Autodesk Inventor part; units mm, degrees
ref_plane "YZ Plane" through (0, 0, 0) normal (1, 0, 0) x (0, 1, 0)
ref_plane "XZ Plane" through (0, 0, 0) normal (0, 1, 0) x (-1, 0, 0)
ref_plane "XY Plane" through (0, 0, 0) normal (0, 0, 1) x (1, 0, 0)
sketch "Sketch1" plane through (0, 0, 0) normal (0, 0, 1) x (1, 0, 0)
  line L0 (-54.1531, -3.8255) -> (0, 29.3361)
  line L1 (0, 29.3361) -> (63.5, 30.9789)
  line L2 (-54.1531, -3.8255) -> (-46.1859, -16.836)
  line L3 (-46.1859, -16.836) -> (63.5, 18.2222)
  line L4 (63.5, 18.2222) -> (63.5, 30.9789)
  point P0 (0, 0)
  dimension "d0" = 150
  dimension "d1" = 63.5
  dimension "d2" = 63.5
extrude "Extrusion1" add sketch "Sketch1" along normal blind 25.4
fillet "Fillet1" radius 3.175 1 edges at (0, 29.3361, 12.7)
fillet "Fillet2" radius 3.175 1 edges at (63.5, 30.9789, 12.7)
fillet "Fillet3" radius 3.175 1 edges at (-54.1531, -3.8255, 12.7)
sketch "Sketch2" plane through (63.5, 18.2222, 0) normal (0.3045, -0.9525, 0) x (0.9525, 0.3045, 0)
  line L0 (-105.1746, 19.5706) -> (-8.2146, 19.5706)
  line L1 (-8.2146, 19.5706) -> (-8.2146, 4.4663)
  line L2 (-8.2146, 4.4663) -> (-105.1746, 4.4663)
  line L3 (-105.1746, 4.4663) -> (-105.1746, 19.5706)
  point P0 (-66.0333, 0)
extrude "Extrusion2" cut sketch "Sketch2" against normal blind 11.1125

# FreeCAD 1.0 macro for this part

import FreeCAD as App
import Part
import Sketcher

V = App.Vector
Q = App.Units.Quantity


def edges_at(feature, points):
    """Names of the edges that pass closest to the given points."""
    edges = feature.Shape.Edges
    near = lambda p: min(range(len(edges)), key=lambda i: edges[i].distToShape(Part.Vertex(*p))[0])
    return sorted({f"Edge{near(p) + 1}" for p in points})

doc = App.newDocument("Part")
body = doc.addObject("PartDesign::Body", "Body")

sketch1 = doc.addObject("Sketcher::SketchObject", "Sketch")
body.addObject(sketch1)
sketch1.AttachmentSupport = (doc.XY_Plane, [""])
sketch1.MapMode = "FlatFace"
sketch1.addGeometry([
    Part.LineSegment(V(0, 29.3361, 0), V(-54.1531, -3.8255, 0)),
    Part.LineSegment(V(-54.1531, -3.8255, 0), V(-46.1859, -16.836, 0)),
    Part.LineSegment(V(-46.1859, -16.836, 0), V(63.5, 18.2222, 0)),
    Part.LineSegment(V(63.5, 18.2222, 0), V(63.5, 30.9789, 0)),
    Part.LineSegment(V(63.5, 30.9789, 0), V(0, 29.3361, 0)),
], False)
sketch1.addConstraint([
    Sketcher.Constraint("Coincident", 0, 2, 1, 1),
    Sketcher.Constraint("Coincident", 1, 2, 2, 1),
    Sketcher.Constraint("Coincident", 2, 2, 3, 1),
    Sketcher.Constraint("Coincident", 3, 2, 4, 1),
    Sketcher.Constraint("Coincident", 4, 2, 0, 1),
    Sketcher.Constraint("Vertical", 3),
    Sketcher.Constraint("PointOnObject", 4, 2, -2),
    Sketcher.Constraint("Perpendicular", 0, 1),
    Sketcher.Constraint("Distance", 0, Q("2.5 in")),
    Sketcher.Constraint("DistanceX", -1, 1, 2, 2, Q("2.5 in")),
    Sketcher.Constraint("DistanceX", 0, 2, -1, 1, Q("2.132 in")),
    Sketcher.Constraint("DistanceY", 3, 1, 3, 2, 12.7567),
    Sketcher.Constraint("DistanceY", 0, 2, -1, 1, Q("0.1506 in")),
    Sketcher.Constraint("DistanceY", -1, 1, 2, 2, Q("0.7174 in")),
    Sketcher.Constraint("DistanceY", 1, 2, 4, 2, Q("1.8178 in")),
])
pad1 = doc.addObject("PartDesign::Pad", "Pad")
body.addObject(pad1)
pad1.Profile = sketch1
pad1.Length = Q("1 in")
doc.recompute()

fillet = doc.addObject("PartDesign::Fillet", "Fillet")
body.addObject(fillet)
fillet.Base = (pad1, edges_at(pad1, [(0, 29.336, 12.7)]))
fillet.Radius = Q("0.125 in")
doc.recompute()

fillet2 = doc.addObject("PartDesign::Fillet", "Fillet001")
body.addObject(fillet2)
fillet2.Base = (fillet, edges_at(fillet, [(63.5, 30.979, 12.7)]))
fillet2.Radius = Q("0.125 in")
doc.recompute()

fillet3 = doc.addObject("PartDesign::Fillet", "Fillet002")
body.addObject(fillet3)
fillet3.Base = (fillet2, edges_at(fillet2, [(-54.153, -3.825, 12.7)]))
fillet3.Radius = Q("0.125 in")

sketch2 = doc.addObject("Sketcher::SketchObject", "Sketch001")
body.addObject(sketch2)
sketch2.Placement = App.Placement(V(63.5, 18.2222, 0), App.Rotation(V(0.952511192, 0.304503578, 0), V(0, 0, 1), V(0.304503578, -0.952511192, 0), "ZXY"))
sketch2.addGeometry([
    Part.LineSegment(V(-8.2146, 19.5706, 0), V(-105.1746, 19.5706, 0)),
    Part.LineSegment(V(-105.1746, 19.5706, 0), V(-105.1746, 4.4663, 0)),
    Part.LineSegment(V(-105.1746, 4.4663, 0), V(-8.2146, 4.4663, 0)),
    Part.LineSegment(V(-8.2146, 4.4663, 0), V(-8.2146, 19.5706, 0)),
], False)
sketch2.addConstraint([
    Sketcher.Constraint("Coincident", 0, 2, 1, 1),
    Sketcher.Constraint("Coincident", 1, 2, 2, 1),
    Sketcher.Constraint("Coincident", 2, 2, 3, 1),
    Sketcher.Constraint("Coincident", 3, 2, 0, 1),
    Sketcher.Constraint("Horizontal", 0),
    Sketcher.Constraint("Vertical", 1),
    Sketcher.Constraint("Horizontal", 2),
    Sketcher.Constraint("Vertical", 3),
    Sketcher.Constraint("DistanceX", 0, 2, 0, 1, 96.96),
    Sketcher.Constraint("DistanceY", 1, 2, 1, 1, 15.1043),
    Sketcher.Constraint("DistanceY", -1, 1, 0, 2, Q("0.7705 in")),
    Sketcher.Constraint("DistanceX", 2, 2, -1, 1, Q("0.3234 in")),
])
pocket1 = doc.addObject("PartDesign::Pocket", "Pocket")
body.addObject(pocket1)
pocket1.Profile = sketch2
pocket1.Length = Q("0.4375 in")

doc.recompute()
